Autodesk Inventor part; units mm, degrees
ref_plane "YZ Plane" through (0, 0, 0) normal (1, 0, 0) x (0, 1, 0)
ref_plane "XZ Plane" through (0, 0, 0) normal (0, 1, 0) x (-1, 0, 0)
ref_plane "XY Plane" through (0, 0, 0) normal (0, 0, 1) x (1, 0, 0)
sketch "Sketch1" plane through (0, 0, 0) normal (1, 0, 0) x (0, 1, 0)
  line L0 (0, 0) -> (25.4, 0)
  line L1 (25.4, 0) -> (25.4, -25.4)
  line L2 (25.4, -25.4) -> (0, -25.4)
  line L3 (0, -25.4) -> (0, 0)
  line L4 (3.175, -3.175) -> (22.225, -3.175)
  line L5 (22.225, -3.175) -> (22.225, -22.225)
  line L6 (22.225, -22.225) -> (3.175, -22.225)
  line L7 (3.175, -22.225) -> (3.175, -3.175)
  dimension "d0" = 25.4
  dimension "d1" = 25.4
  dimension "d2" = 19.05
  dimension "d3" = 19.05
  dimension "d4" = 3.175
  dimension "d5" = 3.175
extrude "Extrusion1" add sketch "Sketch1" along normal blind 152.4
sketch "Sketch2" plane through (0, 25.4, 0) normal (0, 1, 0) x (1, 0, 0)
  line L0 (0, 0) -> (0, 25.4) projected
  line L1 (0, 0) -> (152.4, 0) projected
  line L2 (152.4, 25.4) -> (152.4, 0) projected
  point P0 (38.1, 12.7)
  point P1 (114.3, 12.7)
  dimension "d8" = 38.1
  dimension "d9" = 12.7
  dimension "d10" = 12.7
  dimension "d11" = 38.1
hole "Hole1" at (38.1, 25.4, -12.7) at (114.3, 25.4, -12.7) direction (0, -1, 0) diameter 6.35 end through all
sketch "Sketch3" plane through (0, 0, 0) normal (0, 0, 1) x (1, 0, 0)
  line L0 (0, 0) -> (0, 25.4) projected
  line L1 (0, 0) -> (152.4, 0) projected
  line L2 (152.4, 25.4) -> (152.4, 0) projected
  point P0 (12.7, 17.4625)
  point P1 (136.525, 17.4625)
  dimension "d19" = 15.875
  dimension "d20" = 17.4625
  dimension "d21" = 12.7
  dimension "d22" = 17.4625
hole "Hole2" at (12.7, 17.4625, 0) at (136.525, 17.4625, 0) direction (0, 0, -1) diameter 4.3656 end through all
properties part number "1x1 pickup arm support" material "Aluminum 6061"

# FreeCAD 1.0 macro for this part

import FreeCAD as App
import Part
import Sketcher

V = App.Vector
Q = App.Units.Quantity

doc = App.newDocument("Part")
body = doc.addObject("PartDesign::Body", "Body")

sketch1 = doc.addObject("Sketcher::SketchObject", "Sketch")
body.addObject(sketch1)
sketch1.AttachmentSupport = (doc.YZ_Plane, [""])
sketch1.MapMode = "FlatFace"
sketch1.addGeometry([
    Part.LineSegment(V(25, 0, 0), V(0, 0, 0)),
    Part.LineSegment(V(0, 0, 0), V(0, -25, 0)),
    Part.LineSegment(V(0, -25, 0), V(25, -25, 0)),
    Part.LineSegment(V(25, -25, 0), V(25, 0, 0)),
    Part.LineSegment(V(3, -22, 0), V(3, -3, 0)),
    Part.LineSegment(V(3, -3, 0), V(22, -3, 0)),
    Part.LineSegment(V(22, -3, 0), V(22, -22, 0)),
    Part.LineSegment(V(22, -22, 0), V(3, -22, 0)),
], False)
sketch1.addConstraint([
    Sketcher.Constraint("Coincident", 0, 2, 1, 1),
    Sketcher.Constraint("Coincident", 1, 2, 2, 1),
    Sketcher.Constraint("Coincident", 2, 2, 3, 1),
    Sketcher.Constraint("Coincident", 3, 2, 0, 1),
    Sketcher.Constraint("Coincident", 4, 2, 5, 1),
    Sketcher.Constraint("Coincident", 5, 2, 6, 1),
    Sketcher.Constraint("Coincident", 6, 2, 7, 1),
    Sketcher.Constraint("Coincident", 7, 2, 4, 1),
    Sketcher.Constraint("Horizontal", 0),
    Sketcher.Constraint("Vertical", 1),
    Sketcher.Constraint("Horizontal", 2),
    Sketcher.Constraint("Vertical", 3),
    Sketcher.Constraint("Vertical", 4),
    Sketcher.Constraint("Horizontal", 5),
    Sketcher.Constraint("Vertical", 6),
    Sketcher.Constraint("Horizontal", 7),
    Sketcher.Constraint("Coincident", 0, 2, -1, 1),
    Sketcher.Constraint("Equal", 2, 1),
    Sketcher.Constraint("Equal", 7, 4),
    Sketcher.Constraint("DistanceX", 0, 2, 0, 1, Q("1 in")),
    Sketcher.Constraint("DistanceX", 5, 1, 5, 2, Q("0.75 in")),
    Sketcher.Constraint("DistanceX", -1, 1, 4, 2, Q("0.125 in")),
    Sketcher.Constraint("DistanceY", 4, 2, -1, 1, Q("0.125 in")),
])
pad1 = doc.addObject("PartDesign::Pad", "Pad")
body.addObject(pad1)
pad1.Profile = sketch1
pad1.Length = Q("6 in")

sketch2 = doc.addObject("Sketcher::SketchObject", "Sketch001")
body.addObject(sketch2)
sketch2.AttachmentSupport = (doc.XZ_Plane, [""])
sketch2.MapMode = "FlatFace"
sketch2.AttachmentOffset = App.Placement(V(0, 0, -1 * 25.4), App.Rotation())
sketch2.addGeometry([
    Part.Circle(V(38.1, -12.7, 0), V(0, 0, 1), 3.2),
    Part.Circle(V(114.3, -12.7, 0), V(0, 0, 1), 3.2),
], False)
sketch2.addConstraint([
    Sketcher.Constraint("Equal", 0, 1),
    Sketcher.Constraint("Horizontal", 0, 3, 1, 3),
    Sketcher.Constraint("Diameter", 0, Q("0.25 in")),
    Sketcher.Constraint("DistanceX", 0, 3, 1, 3, Q("3 in")),
    Sketcher.Constraint("DistanceX", -1, 1, 0, 3, Q("1.5 in")),
    Sketcher.Constraint("DistanceY", 0, 3, -1, 1, Q("0.5 in")),
])
doc.recompute()
hole = doc.addObject("PartDesign::Hole", "Hole")
body.addObject(hole)
hole.Profile = sketch2
hole.ThreadType = "None"
hole.Diameter = Q("0.25 in")
hole.DepthType = "ThroughAll"
hole.Reversed = True

sketch3 = doc.addObject("Sketcher::SketchObject", "Sketch002")
body.addObject(sketch3)
sketch3.AttachmentSupport = (doc.XY_Plane, [""])
sketch3.MapMode = "FlatFace"
sketch3.addGeometry([
    Part.Circle(V(12.7, 17.5, 0), V(0, 0, 1), 2.2),
    Part.Circle(V(136.5, 17.5, 0), V(0, 0, 1), 2.2),
], False)
sketch3.addConstraint([
    Sketcher.Constraint("Equal", 0, 1),
    Sketcher.Constraint("Horizontal", 0, 3, 1, 3),
    Sketcher.Constraint("Diameter", 0, Q("0.171874 in")),
    Sketcher.Constraint("DistanceX", -1, 1, 0, 3, Q("0.5 in")),
    Sketcher.Constraint("DistanceY", -1, 1, 0, 3, Q("0.6875 in")),
    Sketcher.Constraint("DistanceX", -1, 1, 1, 3, Q("5.375 in")),
])
doc.recompute()
hole2 = doc.addObject("PartDesign::Hole", "Hole001")
body.addObject(hole2)
hole2.Profile = sketch3
hole2.ThreadType = "None"
hole2.Diameter = Q("0.171874 in")
hole2.DepthType = "ThroughAll"

doc.recompute()
